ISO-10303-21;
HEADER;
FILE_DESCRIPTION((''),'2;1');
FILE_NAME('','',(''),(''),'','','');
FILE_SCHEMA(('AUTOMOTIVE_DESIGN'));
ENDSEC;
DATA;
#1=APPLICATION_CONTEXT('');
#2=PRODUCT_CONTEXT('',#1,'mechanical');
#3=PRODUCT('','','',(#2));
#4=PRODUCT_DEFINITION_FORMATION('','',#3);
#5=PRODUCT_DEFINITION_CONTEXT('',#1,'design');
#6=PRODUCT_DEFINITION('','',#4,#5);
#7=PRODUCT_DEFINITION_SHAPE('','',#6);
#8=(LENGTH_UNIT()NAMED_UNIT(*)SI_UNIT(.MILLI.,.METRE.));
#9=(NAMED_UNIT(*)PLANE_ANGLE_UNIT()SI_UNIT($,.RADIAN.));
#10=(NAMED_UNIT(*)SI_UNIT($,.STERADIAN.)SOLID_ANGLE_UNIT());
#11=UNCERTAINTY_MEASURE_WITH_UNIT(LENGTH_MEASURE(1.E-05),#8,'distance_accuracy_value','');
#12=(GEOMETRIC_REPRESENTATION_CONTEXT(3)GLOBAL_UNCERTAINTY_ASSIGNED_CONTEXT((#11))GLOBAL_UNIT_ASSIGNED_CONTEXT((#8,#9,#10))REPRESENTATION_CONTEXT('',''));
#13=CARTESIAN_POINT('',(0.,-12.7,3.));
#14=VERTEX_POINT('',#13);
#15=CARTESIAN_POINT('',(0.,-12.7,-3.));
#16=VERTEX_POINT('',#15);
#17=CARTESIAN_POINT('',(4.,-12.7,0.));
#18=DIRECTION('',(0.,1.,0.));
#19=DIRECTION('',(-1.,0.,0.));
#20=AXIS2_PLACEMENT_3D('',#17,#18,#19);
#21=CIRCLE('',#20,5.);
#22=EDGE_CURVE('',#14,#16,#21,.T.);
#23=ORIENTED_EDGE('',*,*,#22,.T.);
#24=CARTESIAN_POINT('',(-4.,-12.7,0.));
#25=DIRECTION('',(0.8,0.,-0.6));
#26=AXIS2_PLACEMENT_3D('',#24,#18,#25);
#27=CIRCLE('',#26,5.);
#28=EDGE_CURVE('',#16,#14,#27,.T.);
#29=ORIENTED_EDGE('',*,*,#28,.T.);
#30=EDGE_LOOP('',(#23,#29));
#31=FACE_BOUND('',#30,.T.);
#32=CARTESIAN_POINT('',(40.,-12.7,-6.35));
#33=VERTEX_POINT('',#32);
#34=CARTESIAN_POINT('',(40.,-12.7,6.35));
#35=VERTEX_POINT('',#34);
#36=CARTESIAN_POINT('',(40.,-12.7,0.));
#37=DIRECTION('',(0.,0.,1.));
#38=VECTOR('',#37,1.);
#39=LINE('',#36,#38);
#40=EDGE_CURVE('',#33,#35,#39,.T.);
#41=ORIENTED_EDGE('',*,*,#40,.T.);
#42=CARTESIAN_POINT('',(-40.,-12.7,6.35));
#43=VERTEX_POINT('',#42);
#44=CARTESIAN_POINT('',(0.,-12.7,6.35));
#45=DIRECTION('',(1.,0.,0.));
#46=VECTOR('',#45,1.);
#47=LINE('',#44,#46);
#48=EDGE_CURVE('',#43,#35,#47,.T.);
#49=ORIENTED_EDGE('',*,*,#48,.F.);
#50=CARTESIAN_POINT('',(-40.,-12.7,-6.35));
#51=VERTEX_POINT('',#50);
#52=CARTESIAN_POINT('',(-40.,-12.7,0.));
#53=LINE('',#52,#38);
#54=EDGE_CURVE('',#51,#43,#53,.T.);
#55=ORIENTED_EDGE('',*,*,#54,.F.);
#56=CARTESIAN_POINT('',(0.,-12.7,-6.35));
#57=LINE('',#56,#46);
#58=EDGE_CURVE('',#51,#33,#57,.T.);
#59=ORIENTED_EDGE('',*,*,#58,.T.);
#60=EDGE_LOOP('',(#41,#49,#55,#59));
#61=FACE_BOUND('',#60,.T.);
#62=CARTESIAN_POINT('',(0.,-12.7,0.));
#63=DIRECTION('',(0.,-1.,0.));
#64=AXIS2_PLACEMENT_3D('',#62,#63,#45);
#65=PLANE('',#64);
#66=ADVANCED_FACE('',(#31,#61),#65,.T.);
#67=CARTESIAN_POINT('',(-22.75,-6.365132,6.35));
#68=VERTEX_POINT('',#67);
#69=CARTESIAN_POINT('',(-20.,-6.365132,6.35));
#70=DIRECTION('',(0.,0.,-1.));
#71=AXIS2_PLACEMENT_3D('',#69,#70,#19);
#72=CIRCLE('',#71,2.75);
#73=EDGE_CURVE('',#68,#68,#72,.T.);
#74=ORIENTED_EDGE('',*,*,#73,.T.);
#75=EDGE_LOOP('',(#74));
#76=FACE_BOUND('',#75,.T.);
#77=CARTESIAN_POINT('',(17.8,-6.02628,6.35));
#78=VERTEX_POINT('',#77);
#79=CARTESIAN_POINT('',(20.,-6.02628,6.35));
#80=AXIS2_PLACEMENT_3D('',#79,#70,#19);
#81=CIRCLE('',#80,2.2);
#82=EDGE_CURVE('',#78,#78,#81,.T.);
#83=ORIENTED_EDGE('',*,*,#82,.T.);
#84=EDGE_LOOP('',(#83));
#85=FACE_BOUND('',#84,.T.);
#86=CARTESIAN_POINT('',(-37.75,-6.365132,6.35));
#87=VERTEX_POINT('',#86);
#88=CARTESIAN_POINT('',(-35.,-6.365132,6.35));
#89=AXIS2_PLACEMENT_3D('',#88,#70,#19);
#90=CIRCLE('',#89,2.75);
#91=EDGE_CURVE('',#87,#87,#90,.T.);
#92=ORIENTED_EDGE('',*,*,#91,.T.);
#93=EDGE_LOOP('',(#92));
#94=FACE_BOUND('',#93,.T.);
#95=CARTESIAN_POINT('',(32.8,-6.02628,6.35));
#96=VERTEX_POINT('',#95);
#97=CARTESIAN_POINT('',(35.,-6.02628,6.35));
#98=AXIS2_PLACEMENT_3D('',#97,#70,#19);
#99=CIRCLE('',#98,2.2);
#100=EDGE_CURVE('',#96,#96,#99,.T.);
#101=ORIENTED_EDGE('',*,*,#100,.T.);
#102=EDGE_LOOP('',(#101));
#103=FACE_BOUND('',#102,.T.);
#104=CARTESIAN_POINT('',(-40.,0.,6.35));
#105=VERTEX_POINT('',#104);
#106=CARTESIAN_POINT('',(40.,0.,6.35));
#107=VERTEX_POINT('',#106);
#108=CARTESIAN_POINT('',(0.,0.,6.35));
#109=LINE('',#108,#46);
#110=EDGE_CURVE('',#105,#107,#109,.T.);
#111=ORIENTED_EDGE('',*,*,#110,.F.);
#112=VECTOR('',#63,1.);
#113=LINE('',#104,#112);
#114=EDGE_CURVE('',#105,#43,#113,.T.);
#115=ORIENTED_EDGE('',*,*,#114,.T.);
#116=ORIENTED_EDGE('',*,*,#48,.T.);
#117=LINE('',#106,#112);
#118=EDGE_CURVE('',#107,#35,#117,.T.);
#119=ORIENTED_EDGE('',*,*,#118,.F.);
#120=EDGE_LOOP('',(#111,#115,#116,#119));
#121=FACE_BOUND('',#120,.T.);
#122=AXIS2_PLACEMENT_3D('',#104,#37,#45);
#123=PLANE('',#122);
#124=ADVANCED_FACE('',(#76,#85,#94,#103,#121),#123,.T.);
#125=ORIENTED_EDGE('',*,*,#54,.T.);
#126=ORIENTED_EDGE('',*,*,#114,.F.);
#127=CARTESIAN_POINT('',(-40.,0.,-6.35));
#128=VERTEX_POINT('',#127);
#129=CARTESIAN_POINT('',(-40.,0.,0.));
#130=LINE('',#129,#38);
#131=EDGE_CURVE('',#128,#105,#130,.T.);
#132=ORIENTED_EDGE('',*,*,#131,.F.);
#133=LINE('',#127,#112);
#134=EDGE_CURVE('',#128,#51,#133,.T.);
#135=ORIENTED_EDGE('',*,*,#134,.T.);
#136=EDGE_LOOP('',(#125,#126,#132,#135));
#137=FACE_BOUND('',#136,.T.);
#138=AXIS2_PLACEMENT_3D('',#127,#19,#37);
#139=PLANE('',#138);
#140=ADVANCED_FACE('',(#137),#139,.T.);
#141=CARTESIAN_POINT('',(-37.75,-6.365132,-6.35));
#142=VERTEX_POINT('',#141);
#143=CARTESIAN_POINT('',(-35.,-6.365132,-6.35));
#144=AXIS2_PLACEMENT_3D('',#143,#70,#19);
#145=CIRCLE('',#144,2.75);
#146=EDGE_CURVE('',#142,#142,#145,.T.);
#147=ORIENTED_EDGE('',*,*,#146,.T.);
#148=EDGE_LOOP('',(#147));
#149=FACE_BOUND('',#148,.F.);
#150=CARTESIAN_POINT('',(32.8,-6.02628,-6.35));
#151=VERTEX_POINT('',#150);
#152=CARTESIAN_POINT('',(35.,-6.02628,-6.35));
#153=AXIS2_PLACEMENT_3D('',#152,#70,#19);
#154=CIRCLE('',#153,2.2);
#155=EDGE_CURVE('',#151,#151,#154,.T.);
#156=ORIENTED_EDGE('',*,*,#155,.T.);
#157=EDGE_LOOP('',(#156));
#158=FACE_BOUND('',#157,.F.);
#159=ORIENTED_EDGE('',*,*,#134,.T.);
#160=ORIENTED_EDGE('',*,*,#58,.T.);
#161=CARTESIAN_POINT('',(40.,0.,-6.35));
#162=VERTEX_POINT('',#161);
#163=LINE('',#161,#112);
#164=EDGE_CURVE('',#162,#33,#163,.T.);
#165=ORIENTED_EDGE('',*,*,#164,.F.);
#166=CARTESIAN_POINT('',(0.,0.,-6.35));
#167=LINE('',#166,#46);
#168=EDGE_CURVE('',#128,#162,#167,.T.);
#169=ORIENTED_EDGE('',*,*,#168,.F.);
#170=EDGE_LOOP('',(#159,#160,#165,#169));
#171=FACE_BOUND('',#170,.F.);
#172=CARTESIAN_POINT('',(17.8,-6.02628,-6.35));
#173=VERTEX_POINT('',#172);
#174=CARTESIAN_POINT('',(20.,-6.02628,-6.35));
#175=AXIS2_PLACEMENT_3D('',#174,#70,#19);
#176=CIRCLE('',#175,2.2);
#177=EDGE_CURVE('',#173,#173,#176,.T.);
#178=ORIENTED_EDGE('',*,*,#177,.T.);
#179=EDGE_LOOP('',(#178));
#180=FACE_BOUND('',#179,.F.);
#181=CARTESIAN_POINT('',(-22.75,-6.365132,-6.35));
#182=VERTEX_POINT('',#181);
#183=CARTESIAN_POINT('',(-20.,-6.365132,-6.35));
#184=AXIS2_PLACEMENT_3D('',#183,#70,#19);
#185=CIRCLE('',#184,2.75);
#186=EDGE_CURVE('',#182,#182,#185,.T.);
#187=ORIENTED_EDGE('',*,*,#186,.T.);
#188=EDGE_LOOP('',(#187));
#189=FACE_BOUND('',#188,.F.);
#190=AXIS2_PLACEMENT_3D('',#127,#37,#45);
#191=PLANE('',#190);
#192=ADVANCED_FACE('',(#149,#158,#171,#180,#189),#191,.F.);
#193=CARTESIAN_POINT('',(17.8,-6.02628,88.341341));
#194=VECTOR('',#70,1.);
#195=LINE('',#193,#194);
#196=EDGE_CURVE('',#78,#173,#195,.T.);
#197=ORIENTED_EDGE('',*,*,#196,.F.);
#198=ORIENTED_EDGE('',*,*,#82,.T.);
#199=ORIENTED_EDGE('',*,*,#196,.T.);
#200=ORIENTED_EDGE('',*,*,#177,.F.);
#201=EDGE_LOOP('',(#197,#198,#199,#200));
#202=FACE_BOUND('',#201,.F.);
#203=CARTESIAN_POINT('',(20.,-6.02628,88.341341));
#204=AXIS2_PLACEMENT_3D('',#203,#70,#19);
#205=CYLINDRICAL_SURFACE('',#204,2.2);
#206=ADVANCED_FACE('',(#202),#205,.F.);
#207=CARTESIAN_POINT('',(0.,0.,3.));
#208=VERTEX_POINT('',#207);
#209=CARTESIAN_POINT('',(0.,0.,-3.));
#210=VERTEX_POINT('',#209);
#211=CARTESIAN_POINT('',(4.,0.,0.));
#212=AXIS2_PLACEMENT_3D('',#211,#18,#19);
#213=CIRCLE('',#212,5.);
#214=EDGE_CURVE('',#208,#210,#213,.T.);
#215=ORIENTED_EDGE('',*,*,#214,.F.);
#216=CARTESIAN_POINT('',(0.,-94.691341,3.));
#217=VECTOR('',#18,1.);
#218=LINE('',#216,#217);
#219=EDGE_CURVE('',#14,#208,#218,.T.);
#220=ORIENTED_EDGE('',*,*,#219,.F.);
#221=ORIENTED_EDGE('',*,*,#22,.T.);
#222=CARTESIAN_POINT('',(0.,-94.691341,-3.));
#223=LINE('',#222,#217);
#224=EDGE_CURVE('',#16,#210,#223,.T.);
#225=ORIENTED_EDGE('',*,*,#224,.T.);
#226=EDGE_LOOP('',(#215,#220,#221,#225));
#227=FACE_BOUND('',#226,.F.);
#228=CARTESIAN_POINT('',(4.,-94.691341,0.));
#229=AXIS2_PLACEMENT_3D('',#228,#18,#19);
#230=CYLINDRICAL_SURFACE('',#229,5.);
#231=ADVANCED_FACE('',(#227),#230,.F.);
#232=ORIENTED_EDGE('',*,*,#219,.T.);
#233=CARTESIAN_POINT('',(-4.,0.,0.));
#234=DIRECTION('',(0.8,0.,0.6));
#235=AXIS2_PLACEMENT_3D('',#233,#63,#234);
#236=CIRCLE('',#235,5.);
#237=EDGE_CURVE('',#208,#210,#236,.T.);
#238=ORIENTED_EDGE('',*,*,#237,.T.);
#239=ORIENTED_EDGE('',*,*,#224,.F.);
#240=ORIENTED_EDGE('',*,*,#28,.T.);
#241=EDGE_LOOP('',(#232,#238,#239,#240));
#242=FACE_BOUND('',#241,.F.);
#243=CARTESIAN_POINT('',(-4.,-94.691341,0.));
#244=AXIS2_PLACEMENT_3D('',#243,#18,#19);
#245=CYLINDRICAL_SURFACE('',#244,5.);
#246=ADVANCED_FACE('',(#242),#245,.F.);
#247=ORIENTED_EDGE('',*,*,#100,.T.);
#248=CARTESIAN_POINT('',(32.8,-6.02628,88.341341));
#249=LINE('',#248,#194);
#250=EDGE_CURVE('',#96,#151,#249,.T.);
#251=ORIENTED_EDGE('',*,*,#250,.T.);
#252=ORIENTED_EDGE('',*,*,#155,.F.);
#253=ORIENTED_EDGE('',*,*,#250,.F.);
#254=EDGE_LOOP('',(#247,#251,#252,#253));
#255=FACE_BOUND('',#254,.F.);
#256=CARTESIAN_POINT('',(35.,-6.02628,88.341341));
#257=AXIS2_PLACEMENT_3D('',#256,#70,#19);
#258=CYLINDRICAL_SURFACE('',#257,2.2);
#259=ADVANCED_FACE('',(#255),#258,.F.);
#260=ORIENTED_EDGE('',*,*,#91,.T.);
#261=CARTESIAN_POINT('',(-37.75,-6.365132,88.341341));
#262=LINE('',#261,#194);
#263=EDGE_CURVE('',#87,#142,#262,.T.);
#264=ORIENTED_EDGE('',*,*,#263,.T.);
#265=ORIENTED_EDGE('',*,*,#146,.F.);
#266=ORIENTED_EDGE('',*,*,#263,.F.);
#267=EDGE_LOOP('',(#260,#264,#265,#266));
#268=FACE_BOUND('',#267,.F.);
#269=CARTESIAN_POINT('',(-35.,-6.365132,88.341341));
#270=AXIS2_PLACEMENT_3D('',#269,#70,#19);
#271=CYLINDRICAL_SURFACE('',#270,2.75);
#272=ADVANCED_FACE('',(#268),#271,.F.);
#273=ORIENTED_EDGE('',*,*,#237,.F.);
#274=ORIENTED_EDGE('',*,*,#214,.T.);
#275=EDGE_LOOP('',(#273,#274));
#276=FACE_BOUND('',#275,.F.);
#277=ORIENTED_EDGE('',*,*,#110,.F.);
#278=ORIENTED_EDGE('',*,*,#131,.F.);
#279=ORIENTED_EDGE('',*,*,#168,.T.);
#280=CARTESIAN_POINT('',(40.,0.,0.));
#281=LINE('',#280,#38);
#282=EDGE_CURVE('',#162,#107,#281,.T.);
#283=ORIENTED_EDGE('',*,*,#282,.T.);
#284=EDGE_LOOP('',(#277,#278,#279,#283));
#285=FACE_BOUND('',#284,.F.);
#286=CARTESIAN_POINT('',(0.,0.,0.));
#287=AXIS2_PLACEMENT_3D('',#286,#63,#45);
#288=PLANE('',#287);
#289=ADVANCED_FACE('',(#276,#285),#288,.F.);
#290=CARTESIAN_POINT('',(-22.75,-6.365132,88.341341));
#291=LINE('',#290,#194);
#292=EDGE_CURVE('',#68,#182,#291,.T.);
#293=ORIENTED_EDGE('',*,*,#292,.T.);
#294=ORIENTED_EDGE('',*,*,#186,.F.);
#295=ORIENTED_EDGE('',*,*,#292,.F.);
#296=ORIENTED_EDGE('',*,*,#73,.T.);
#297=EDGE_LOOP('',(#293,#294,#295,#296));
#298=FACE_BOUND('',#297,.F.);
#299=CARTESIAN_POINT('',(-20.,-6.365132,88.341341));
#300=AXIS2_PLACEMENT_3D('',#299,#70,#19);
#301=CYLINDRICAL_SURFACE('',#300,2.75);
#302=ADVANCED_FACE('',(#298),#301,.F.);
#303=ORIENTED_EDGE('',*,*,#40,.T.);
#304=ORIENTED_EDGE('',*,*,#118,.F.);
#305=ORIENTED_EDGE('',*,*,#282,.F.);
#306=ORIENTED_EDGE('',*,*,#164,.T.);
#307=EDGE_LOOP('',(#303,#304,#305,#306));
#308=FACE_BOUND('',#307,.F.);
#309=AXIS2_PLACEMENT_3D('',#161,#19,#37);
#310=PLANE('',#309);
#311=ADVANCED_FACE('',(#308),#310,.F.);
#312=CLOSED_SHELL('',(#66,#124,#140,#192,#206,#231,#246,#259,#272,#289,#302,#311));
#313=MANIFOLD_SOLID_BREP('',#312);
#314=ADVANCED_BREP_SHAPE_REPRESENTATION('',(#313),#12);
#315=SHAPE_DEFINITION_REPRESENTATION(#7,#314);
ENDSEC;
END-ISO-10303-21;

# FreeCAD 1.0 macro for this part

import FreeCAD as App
import Part
import Sketcher

V = App.Vector

doc = App.newDocument("Part")
params = doc.addObject("Spreadsheet::Sheet", "Params")
for row, (alias, value) in enumerate([
    ("sketch1_width", "80 mm"),
    ("sketch1_height", "12.7 mm"),
    ("pad1_length", "12.7 mm"),
    ("sketch2_diameter", "10 mm"),
    ("hole_diameter", "10 mm"),
    ("sketch3_diameter", "4.4 mm"),
    ("hole2_diameter", "4.4 mm"),
    ("sketch4_diameter", "5.5 mm"),
    ("hole3_diameter", "5.5 mm"),
], start=1):
    params.set(f"A{row}", alias)
    params.set(f"B{row}", "=" + value)
    params.setAlias(f"B{row}", alias)

body = doc.addObject("PartDesign::Body", "Body")

# Sketch on XZ plane
sketch1 = body.newObject("Sketcher::SketchObject", "Sketch")
sketch1.AttachmentSupport = (doc.getObject("XZ_Plane"), [""])
sketch1.MapMode = "FlatFace"
sketch1.addGeometry([
    Part.LineSegment(V(-40, 6, 0), V(-40, -6, 0)),
    Part.LineSegment(V(-40, -6, 0), V(40, -6, 0)),
    Part.LineSegment(V(40, -6, 0), V(40, 6, 0)),
    Part.LineSegment(V(40, 6, 0), V(-40, 6, 0)),
], False)
sketch1.addConstraint([
    Sketcher.Constraint("Coincident", 0, 2, 1, 1),
    Sketcher.Constraint("Coincident", 1, 2, 2, 1),
    Sketcher.Constraint("Coincident", 2, 2, 3, 1),
    Sketcher.Constraint("Coincident", 3, 2, 0, 1),
    Sketcher.Constraint("Vertical", 0),
    Sketcher.Constraint("Horizontal", 1),
    Sketcher.Constraint("Vertical", 2),
    Sketcher.Constraint("Horizontal", 3),
    Sketcher.Constraint("Symmetric", 0, 2, 2, 2, -1, 1),
    Sketcher.Constraint("DistanceX", 1, 1, 1, 2, 80.0),
    Sketcher.Constraint("DistanceY", 0, 2, 0, 1, 12.7),
])
sketch1.setExpression("Constraints[9]", "Params.sketch1_width")
sketch1.setExpression("Constraints[10]", "Params.sketch1_height")
pad1 = body.newObject("PartDesign::Pad", "Pad")
pad1.Profile = sketch1
pad1.setExpression("Length", "Params.pad1_length")

# Sketch on XZ plane
sketch2 = body.newObject("Sketcher::SketchObject", "Sketch001")
sketch2.AttachmentSupport = (doc.getObject("XZ_Plane"), [""])
sketch2.MapMode = "FlatFace"
sketch2.AttachmentOffset = App.Placement(V(0, 0, 12.7), App.Rotation())
sketch2.addGeometry([
    Part.Circle(V(-4, 0, 0), V(0, 0, 1), 5),
    Part.Circle(V(4, 0, 0), V(0, 0, 1), 5),
], False)
sketch2.addConstraint([
    Sketcher.Constraint("Equal", 0, 1),
    Sketcher.Constraint("Symmetric", 0, 3, 1, 3, -1, 1),
    Sketcher.Constraint("PointOnObject", 0, 3, -1),
    Sketcher.Constraint("Diameter", 0, 10.0),
    Sketcher.Constraint("DistanceX", 0, 3, -1, 1, 4.0),
])
sketch2.setExpression("Constraints[3]", "Params.sketch2_diameter")
doc.recompute()
hole = body.newObject("PartDesign::Hole", "Hole")
hole.Profile = sketch2
hole.ThreadType = "None"
hole.setExpression("Diameter", "Params.hole_diameter")
hole.DepthType = "ThroughAll"

# Sketch on XY plane
sketch3 = body.newObject("Sketcher::SketchObject", "Sketch002")
sketch3.AttachmentSupport = (doc.getObject("XY_Plane"), [""])
sketch3.MapMode = "FlatFace"
sketch3.AttachmentOffset = App.Placement(V(0, 0, 6.35), App.Rotation())
sketch3.addGeometry([
    Part.Circle(V(20, -6, 0), V(0, 0, 1), 2.2),
    Part.Circle(V(35, -6, 0), V(0, 0, 1), 2.2),
], False)
sketch3.addConstraint([
    Sketcher.Constraint("Equal", 0, 1),
    Sketcher.Constraint("Horizontal", 0, 3, 1, 3),
    Sketcher.Constraint("Diameter", 0, 4.4),
    Sketcher.Constraint("DistanceX", -1, 1, 0, 3, 20.0),
    Sketcher.Constraint("DistanceX", -1, 1, 1, 3, 35.0),
    Sketcher.Constraint("DistanceY", 0, 3, -1, 1, 6.02628),
])
sketch3.setExpression("Constraints[2]", "Params.sketch3_diameter")
doc.recompute()
hole2 = body.newObject("PartDesign::Hole", "Hole001")
hole2.Profile = sketch3
hole2.ThreadType = "None"
hole2.setExpression("Diameter", "Params.hole2_diameter")
hole2.DepthType = "ThroughAll"

# Sketch on XY plane
sketch4 = body.newObject("Sketcher::SketchObject", "Sketch003")
sketch4.AttachmentSupport = (doc.getObject("XY_Plane"), [""])
sketch4.MapMode = "FlatFace"
sketch4.AttachmentOffset = App.Placement(V(0, 0, 6.35), App.Rotation())
sketch4.addGeometry([
    Part.Circle(V(-35, -6.4, 0), V(0, 0, 1), 2.8),
    Part.Circle(V(-20, -6.4, 0), V(0, 0, 1), 2.8),
], False)
sketch4.addConstraint([
    Sketcher.Constraint("Equal", 0, 1),
    Sketcher.Constraint("Horizontal", 0, 3, 1, 3),
    Sketcher.Constraint("Diameter", 0, 5.5),
    Sketcher.Constraint("DistanceX", 0, 3, -1, 1, 35.0),
    Sketcher.Constraint("DistanceX", 1, 3, -1, 1, 20.0),
    Sketcher.Constraint("DistanceY", 0, 3, -1, 1, 6.365132),
])
sketch4.setExpression("Constraints[2]", "Params.sketch4_diameter")
doc.recompute()
hole3 = body.newObject("PartDesign::Hole", "Hole002")
hole3.Profile = sketch4
hole3.ThreadType = "None"
hole3.setExpression("Diameter", "Params.hole3_diameter")
hole3.DepthType = "ThroughAll"

doc.recompute()
